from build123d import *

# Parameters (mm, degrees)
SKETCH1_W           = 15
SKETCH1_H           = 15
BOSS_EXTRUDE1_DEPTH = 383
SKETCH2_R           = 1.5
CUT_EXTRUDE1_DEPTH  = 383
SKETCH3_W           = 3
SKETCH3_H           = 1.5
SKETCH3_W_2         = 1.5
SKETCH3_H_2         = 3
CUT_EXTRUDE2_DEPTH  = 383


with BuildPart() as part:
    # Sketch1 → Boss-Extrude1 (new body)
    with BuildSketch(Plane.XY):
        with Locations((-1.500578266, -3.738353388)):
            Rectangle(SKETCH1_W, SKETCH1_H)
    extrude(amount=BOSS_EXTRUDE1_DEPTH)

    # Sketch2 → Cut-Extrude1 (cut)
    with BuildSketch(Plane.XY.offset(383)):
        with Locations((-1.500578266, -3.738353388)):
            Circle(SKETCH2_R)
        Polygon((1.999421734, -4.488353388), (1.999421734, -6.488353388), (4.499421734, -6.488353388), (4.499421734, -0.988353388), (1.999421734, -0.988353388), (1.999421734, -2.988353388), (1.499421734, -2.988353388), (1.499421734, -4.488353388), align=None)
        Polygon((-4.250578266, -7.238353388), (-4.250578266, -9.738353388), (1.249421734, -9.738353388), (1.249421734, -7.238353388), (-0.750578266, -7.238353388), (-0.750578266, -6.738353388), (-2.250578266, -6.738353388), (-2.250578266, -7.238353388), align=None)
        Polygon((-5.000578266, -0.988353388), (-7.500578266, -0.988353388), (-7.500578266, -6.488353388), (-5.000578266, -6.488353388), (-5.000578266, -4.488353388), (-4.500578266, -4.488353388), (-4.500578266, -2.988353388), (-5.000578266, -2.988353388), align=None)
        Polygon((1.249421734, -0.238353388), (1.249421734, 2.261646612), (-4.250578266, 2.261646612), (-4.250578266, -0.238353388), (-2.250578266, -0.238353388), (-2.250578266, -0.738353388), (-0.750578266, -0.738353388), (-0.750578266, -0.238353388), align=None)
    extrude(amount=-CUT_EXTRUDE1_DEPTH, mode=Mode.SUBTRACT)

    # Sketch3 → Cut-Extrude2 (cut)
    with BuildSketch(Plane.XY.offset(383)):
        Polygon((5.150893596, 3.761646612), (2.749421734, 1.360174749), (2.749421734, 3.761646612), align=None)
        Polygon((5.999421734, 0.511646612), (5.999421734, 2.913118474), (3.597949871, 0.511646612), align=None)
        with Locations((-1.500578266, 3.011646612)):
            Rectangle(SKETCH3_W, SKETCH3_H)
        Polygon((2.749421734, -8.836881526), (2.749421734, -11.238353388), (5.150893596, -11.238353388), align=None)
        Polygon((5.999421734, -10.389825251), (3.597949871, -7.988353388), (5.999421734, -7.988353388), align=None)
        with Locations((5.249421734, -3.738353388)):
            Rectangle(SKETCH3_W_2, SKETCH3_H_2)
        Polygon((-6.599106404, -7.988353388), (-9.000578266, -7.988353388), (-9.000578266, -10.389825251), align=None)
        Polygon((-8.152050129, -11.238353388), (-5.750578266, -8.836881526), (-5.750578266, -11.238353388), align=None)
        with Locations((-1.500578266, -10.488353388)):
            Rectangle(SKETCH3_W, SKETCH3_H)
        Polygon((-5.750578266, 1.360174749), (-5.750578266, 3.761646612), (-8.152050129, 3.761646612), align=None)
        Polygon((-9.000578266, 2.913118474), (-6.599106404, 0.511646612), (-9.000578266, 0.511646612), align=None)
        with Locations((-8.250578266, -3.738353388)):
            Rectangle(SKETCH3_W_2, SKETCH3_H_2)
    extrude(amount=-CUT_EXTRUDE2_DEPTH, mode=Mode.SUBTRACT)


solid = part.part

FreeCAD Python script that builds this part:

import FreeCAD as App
import Part
import Sketcher


def add_polygon(sketch, points):
    """Adds a closed chain of lines whose ends are joined by coincident constraints."""
    first, n = sketch.GeometryCount, len(points)
    for a, b in zip(points, points[1:] + points[:1]):
        sketch.addGeometry(Part.LineSegment(App.Vector(*a, 0), App.Vector(*b, 0)), False)
    for i in range(n):
        sketch.addConstraint(Sketcher.Constraint("Coincident", first + i, 2, first + (i + 1) % n, 1))

doc = App.newDocument("Part")
body = doc.addObject("PartDesign::Body", "Body")

sketch1 = body.newObject("Sketcher::SketchObject", "Sketch")
sketch1.AttachmentSupport = (doc.getObject("XY_Plane"), [""])
sketch1.MapMode = "FlatFace"
add_polygon(sketch1, [(-9, 4), (-9, -11), (6, -11), (6, 4)])
sketch1.addConstraint(Sketcher.Constraint("Vertical", 0))
sketch1.addConstraint(Sketcher.Constraint("Horizontal", 1))
sketch1.addConstraint(Sketcher.Constraint("Vertical", 2))
sketch1.addConstraint(Sketcher.Constraint("Horizontal", 3))
sketch1.addConstraint(Sketcher.Constraint("Equal", 3, 0))
sketch1.addConstraint(Sketcher.Constraint("DistanceX", 1, 1, 1, 2, 15.0))
sketch1.addConstraint(Sketcher.Constraint("DistanceX", 0, 2, -1, 1, 9.000578))
sketch1.addConstraint(Sketcher.Constraint("DistanceY", 0, 2, -1, 1, 11.238353))
pad1 = body.newObject("PartDesign::Pad", "Pad")
pad1.Profile = sketch1
pad1.Length = 383

sketch2 = body.newObject("Sketcher::SketchObject", "Sketch001")
sketch2.AttachmentSupport = (doc.getObject("XY_Plane"), [""])
sketch2.MapMode = "FlatFace"
sketch2.AttachmentOffset = App.Placement(App.Vector(0, 0, 383), App.Rotation())
sketch2.addGeometry(Part.Circle(App.Vector(-1.5, -3.7, 0), App.Vector(0, 0, 1), 1.5), False)
add_polygon(sketch2, [(2, -4.5), (2, -6.5), (4.5, -6.5), (4.5, -1), (2, -1), (2, -3), (1.5, -3), (1.5, -4.5)])
add_polygon(sketch2, [(-4.3, -7.2), (-4.3, -9.7), (1.2, -9.7), (1.2, -7.2), (-0.8, -7.2), (-0.8, -6.7), (-2.3, -6.7), (-2.3, -7.2)])
add_polygon(sketch2, [(-5, -1), (-7.5, -1), (-7.5, -6.5), (-5, -6.5), (-5, -4.5), (-4.5, -4.5), (-4.5, -3), (-5, -3)])
add_polygon(sketch2, [(1.2, -0.2), (1.2, 2.3), (-4.3, 2.3), (-4.3, -0.2), (-2.3, -0.2), (-2.3, -0.7), (-0.8, -0.7), (-0.8, -0.2)])
sketch2.addConstraint(Sketcher.Constraint("Vertical", 1))
sketch2.addConstraint(Sketcher.Constraint("Horizontal", 2))
sketch2.addConstraint(Sketcher.Constraint("Vertical", 3))
sketch2.addConstraint(Sketcher.Constraint("Horizontal", 4))
sketch2.addConstraint(Sketcher.Constraint("Vertical", 5))
sketch2.addConstraint(Sketcher.Constraint("Horizontal", 6))
sketch2.addConstraint(Sketcher.Constraint("Vertical", 7))
sketch2.addConstraint(Sketcher.Constraint("Horizontal", 8))
sketch2.addConstraint(Sketcher.Constraint("Vertical", 9))
sketch2.addConstraint(Sketcher.Constraint("Horizontal", 10))
sketch2.addConstraint(Sketcher.Constraint("Vertical", 11))
sketch2.addConstraint(Sketcher.Constraint("Horizontal", 12))
sketch2.addConstraint(Sketcher.Constraint("Vertical", 13))
sketch2.addConstraint(Sketcher.Constraint("Horizontal", 14))
sketch2.addConstraint(Sketcher.Constraint("Vertical", 15))
sketch2.addConstraint(Sketcher.Constraint("Horizontal", 16))
sketch2.addConstraint(Sketcher.Constraint("Horizontal", 17))
sketch2.addConstraint(Sketcher.Constraint("Vertical", 18))
sketch2.addConstraint(Sketcher.Constraint("Horizontal", 19))
sketch2.addConstraint(Sketcher.Constraint("Vertical", 20))
sketch2.addConstraint(Sketcher.Constraint("Horizontal", 21))
sketch2.addConstraint(Sketcher.Constraint("Vertical", 22))
sketch2.addConstraint(Sketcher.Constraint("Horizontal", 23))
sketch2.addConstraint(Sketcher.Constraint("Vertical", 24))
sketch2.addConstraint(Sketcher.Constraint("Vertical", 25))
sketch2.addConstraint(Sketcher.Constraint("Horizontal", 26))
sketch2.addConstraint(Sketcher.Constraint("Vertical", 27))
sketch2.addConstraint(Sketcher.Constraint("Horizontal", 28))
sketch2.addConstraint(Sketcher.Constraint("Vertical", 29))
sketch2.addConstraint(Sketcher.Constraint("Horizontal", 30))
sketch2.addConstraint(Sketcher.Constraint("Vertical", 31))
sketch2.addConstraint(Sketcher.Constraint("Horizontal", 32))
sketch2.addConstraint(Sketcher.Constraint("Horizontal", 12, 2, 15, 2))
sketch2.addConstraint(Sketcher.Constraint("Horizontal", 4, 2, 17, 2))
sketch2.addConstraint(Sketcher.Constraint("Horizontal", 2, 2, 18, 2))
sketch2.addConstraint(Sketcher.Constraint("Horizontal", 8, 2, 20, 2))
sketch2.addConstraint(Sketcher.Constraint("Horizontal", 6, 2, 22, 2))
sketch2.addConstraint(Sketcher.Constraint("Horizontal", 28, 2, 31, 2))
sketch2.addConstraint(Sketcher.Constraint("Vertical", 1, 2, 4, 2))
sketch2.addConstraint(Sketcher.Constraint("Vertical", 20, 2, 23, 2))
sketch2.addConstraint(Sketcher.Constraint("Vertical", 11, 2, 25, 2))
sketch2.addConstraint(Sketcher.Constraint("Vertical", 16, 2, 26, 2))
sketch2.addConstraint(Sketcher.Constraint("Vertical", 15, 2, 28, 2))
sketch2.addConstraint(Sketcher.Constraint("Vertical", 13, 2, 30, 2))
sketch2.addConstraint(Sketcher.Constraint("Equal", 12, 16))
sketch2.addConstraint(Sketcher.Constraint("Equal", 4, 17))
sketch2.addConstraint(Sketcher.Constraint("Equal", 8, 21))
sketch2.addConstraint(Sketcher.Constraint("Equal", 32, 1))
sketch2.addConstraint(Sketcher.Constraint("Equal", 26, 3))
sketch2.addConstraint(Sketcher.Constraint("Equal", 1, 5))
sketch2.addConstraint(Sketcher.Constraint("Equal", 19, 9))
sketch2.addConstraint(Sketcher.Constraint("Equal", 23, 13))
sketch2.addConstraint(Sketcher.Constraint("Equal", 11, 25))
sketch2.addConstraint(Sketcher.Constraint("Equal", 15, 29))
sketch2.addConstraint(Sketcher.Constraint("Diameter", 0, 3.0))
sketch2.addConstraint(Sketcher.Constraint("DistanceX", 12, 2, 12, 1, 2.0))
sketch2.addConstraint(Sketcher.Constraint("DistanceX", 2, 1, 2, 2, 2.5))
sketch2.addConstraint(Sketcher.Constraint("DistanceX", 6, 2, 6, 1, 0.5))
sketch2.addConstraint(Sketcher.Constraint("DistanceX", 10, 1, 10, 2, 5.5))
sketch2.addConstraint(Sketcher.Constraint("DistanceX", 0, 3, 2, 2, 6.0))
sketch2.addConstraint(Sketcher.Constraint("DistanceY", 9, 2, 0, 3, 6.0))
sketch2.addConstraint(Sketcher.Constraint("DistanceX", 17, 2, 0, 3, 6.0))
sketch2.addConstraint(Sketcher.Constraint("DistanceY", 0, 3, 25, 2, 6.0))
sketch2.addConstraint(Sketcher.Constraint("DistanceY", 1, 2, 0, 3, 2.75))
sketch2.addConstraint(Sketcher.Constraint("DistanceX", 9, 2, 0, 3, 2.75))
sketch2.addConstraint(Sketcher.Constraint("DistanceX", 0, 3, -1, 1, 1.500578))
sketch2.addConstraint(Sketcher.Constraint("DistanceY", 0, 3, -1, 1, 3.738353))
pocket1 = body.newObject("PartDesign::Pocket", "Pocket")
pocket1.Profile = sketch2
pocket1.Length = 383

sketch3 = body.newObject("Sketcher::SketchObject", "Sketch002")
sketch3.AttachmentSupport = (doc.getObject("XY_Plane"), [""])
sketch3.MapMode = "FlatFace"
sketch3.AttachmentOffset = App.Placement(App.Vector(0, 0, 383), App.Rotation())
add_polygon(sketch3, [(2.7, 1.4), (5.2, 3.8), (2.7, 3.8)])
add_polygon(sketch3, [(6, 0.5), (6, 2.9), (3.6, 0.5)])
add_polygon(sketch3, [(-3, 3.8), (-3, 2.3), (0, 2.3), (0, 3.8)])
add_polygon(sketch3, [(2.7, -8.8), (2.7, -11.2), (5.2, -11.2)])
add_polygon(sketch3, [(3.6, -8), (6, -10.4), (6, -8)])
add_polygon(sketch3, [(4.5, -2.2), (4.5, -5.2), (6, -5.2), (6, -2.2)])
add_polygon(sketch3, [(-6.6, -8), (-9, -8), (-9, -10.4)])
add_polygon(sketch3, [(-5.8, -8.8), (-8.2, -11.2), (-5.8, -11.2)])
add_polygon(sketch3, [(-3, -9.7), (-3, -11.2), (0, -11.2), (0, -9.7)])
add_polygon(sketch3, [(-5.8, 1.4), (-5.8, 3.8), (-8.2, 3.8)])
add_polygon(sketch3, [(-6.6, 0.5), (-9, 2.9), (-9, 0.5)])
add_polygon(sketch3, [(-9, -2.2), (-9, -5.2), (-7.5, -5.2), (-7.5, -2.2)])
sketch3.addConstraint(Sketcher.Constraint("Horizontal", 1))
sketch3.addConstraint(Sketcher.Constraint("Vertical", 2))
sketch3.addConstraint(Sketcher.Constraint("Vertical", 3))
sketch3.addConstraint(Sketcher.Constraint("Horizontal", 5))
sketch3.addConstraint(Sketcher.Constraint("Vertical", 6))
sketch3.addConstraint(Sketcher.Constraint("Horizontal", 7))
sketch3.addConstraint(Sketcher.Constraint("Vertical", 8))
sketch3.addConstraint(Sketcher.Constraint("Horizontal", 9))
sketch3.addConstraint(Sketcher.Constraint("Vertical", 10))
sketch3.addConstraint(Sketcher.Constraint("Horizontal", 11))
sketch3.addConstraint(Sketcher.Constraint("Vertical", 14))
sketch3.addConstraint(Sketcher.Constraint("Horizontal", 15))
sketch3.addConstraint(Sketcher.Constraint("Vertical", 16))
sketch3.addConstraint(Sketcher.Constraint("Horizontal", 17))
sketch3.addConstraint(Sketcher.Constraint("Vertical", 18))
sketch3.addConstraint(Sketcher.Constraint("Horizontal", 19))
sketch3.addConstraint(Sketcher.Constraint("Horizontal", 20))
sketch3.addConstraint(Sketcher.Constraint("Vertical", 21))
sketch3.addConstraint(Sketcher.Constraint("Horizontal", 24))
sketch3.addConstraint(Sketcher.Constraint("Vertical", 25))
sketch3.addConstraint(Sketcher.Constraint("Vertical", 26))
sketch3.addConstraint(Sketcher.Constraint("Horizontal", 27))
sketch3.addConstraint(Sketcher.Constraint("Vertical", 28))
sketch3.addConstraint(Sketcher.Constraint("Horizontal", 29))
sketch3.addConstraint(Sketcher.Constraint("Vertical", 30))
sketch3.addConstraint(Sketcher.Constraint("Horizontal", 31))
sketch3.addConstraint(Sketcher.Constraint("Vertical", 34))
sketch3.addConstraint(Sketcher.Constraint("Horizontal", 35))
sketch3.addConstraint(Sketcher.Constraint("Vertical", 36))
sketch3.addConstraint(Sketcher.Constraint("Horizontal", 37))
sketch3.addConstraint(Sketcher.Constraint("Vertical", 38))
sketch3.addConstraint(Sketcher.Constraint("Horizontal", 39))
sketch3.addConstraint(Sketcher.Constraint("Parallel", 0, 4))
sketch3.addConstraint(Sketcher.Constraint("Perpendicular", 4, 12))
sketch3.addConstraint(Sketcher.Constraint("Parallel", 12, 13))
sketch3.addConstraint(Sketcher.Constraint("Perpendicular", 13, 22))
sketch3.addConstraint(Sketcher.Constraint("Parallel", 22, 23))
sketch3.addConstraint(Sketcher.Constraint("Perpendicular", 23, 32))
sketch3.addConstraint(Sketcher.Constraint("Parallel", 32, 33))
sketch3.addConstraint(Sketcher.Constraint("Horizontal", 1, 2, 8, 2))
sketch3.addConstraint(Sketcher.Constraint("Horizontal", 15, 2, 20, 2))
sketch3.addConstraint(Sketcher.Constraint("Horizontal", 13, 2, 21, 2))
sketch3.addConstraint(Sketcher.Constraint("Horizontal", 11, 2, 23, 2))
sketch3.addConstraint(Sketcher.Constraint("Horizontal", 12, 2, 25, 2))
sketch3.addConstraint(Sketcher.Constraint("Horizontal", 24, 2, 26, 2))
sketch3.addConstraint(Sketcher.Constraint("Horizontal", 9, 2, 30, 2))
sketch3.addConstraint(Sketcher.Constraint("Horizontal", 2, 2, 32, 2))
sketch3.addConstraint(Sketcher.Constraint("Horizontal", 3, 2, 33, 2))
sketch3.addConstraint(Sketcher.Constraint("Horizontal", 5, 2, 34, 2))
sketch3.addConstraint(Sketcher.Constraint("Horizontal", 17, 2, 36, 2))
sketch3.addConstraint(Sketcher.Constraint("Horizontal", 19, 2, 38, 2))
sketch3.addConstraint(Sketcher.Constraint("Vertical", 2, 2, 10, 2))
sketch3.addConstraint(Sketcher.Constraint("Vertical", 0, 2, 11, 2))
sketch3.addConstraint(Sketcher.Constraint("Vertical", 5, 2, 13, 2))
sketch3.addConstraint(Sketcher.Constraint("Vertical", 4, 2, 15, 2))
sketch3.addConstraint(Sketcher.Constraint("Vertical", 14, 2, 17, 2))
sketch3.addConstraint(Sketcher.Constraint("Vertical", 9, 2, 26, 2))
sketch3.addConstraint(Sketcher.Constraint("Vertical", 8, 2, 27, 2))
sketch3.addConstraint(Sketcher.Constraint("Vertical", 25, 2, 30, 2))
sketch3.addConstraint(Sketcher.Constraint("Vertical", 23, 2, 31, 2))
sketch3.addConstraint(Sketcher.Constraint("Vertical", 21, 2, 33, 2))
sketch3.addConstraint(Sketcher.Constraint("Vertical", 34, 2, 36, 2))
sketch3.addConstraint(Sketcher.Constraint("Equal", 1, 5))
sketch3.addConstraint(Sketcher.Constraint("Equal", 19, 37))
sketch3.addConstraint(Sketcher.Constraint("Equal", 39, 6))
sketch3.addConstraint(Sketcher.Constraint("Equal", 29, 16))
sketch3.addConstraint(Sketcher.Constraint("Equal", 8, 26))
sketch3.addConstraint(Sketcher.Constraint("DistanceX", 7, 1, 7, 2, 3.0))
sketch3.addConstraint(Sketcher.Constraint("DistanceX", 17, 1, 17, 2, 1.5))
sketch3.addConstraint(Sketcher.Constraint("DistanceX", 6, 2, 3, 2, 9.0))
sketch3.addConstraint(Sketcher.Constraint("DistanceX", 20, 2, 6, 2, 6.0))
sketch3.addConstraint(Sketcher.Constraint("DistanceY", 10, 2, 7, 2, 13.5))
sketch3.addConstraint(Sketcher.Constraint("DistanceY", 14, 2, 5, 2, 8.5))
sketch3.addConstraint(Sketcher.Constraint("DistanceX", 24, 2, 10, 2, 8.5))
sketch3.addConstraint(Sketcher.Constraint("DistanceX", 1, 2, 3, 2, 3.25))
sketch3.addConstraint(Sketcher.Constraint("DistanceY", 4, 2, 1, 2, 3.25))
sketch3.addConstraint(Sketcher.Constraint("DistanceY", 15, 2, 16, 2, 2.75))
sketch3.addConstraint(Sketcher.Constraint("DistanceX", 1, 2, 1, 1, 2.401472))
sketch3.addConstraint(Sketcher.Constraint("DistanceX", -1, 1, 1, 2, 2.749422))
sketch3.addConstraint(Sketcher.Constraint("DistanceY", -1, 1, 3, 2, 2.913118))
pocket2 = body.newObject("PartDesign::Pocket", "Pocket001")
pocket2.Profile = sketch3
pocket2.Length = 383

doc.recompute()
